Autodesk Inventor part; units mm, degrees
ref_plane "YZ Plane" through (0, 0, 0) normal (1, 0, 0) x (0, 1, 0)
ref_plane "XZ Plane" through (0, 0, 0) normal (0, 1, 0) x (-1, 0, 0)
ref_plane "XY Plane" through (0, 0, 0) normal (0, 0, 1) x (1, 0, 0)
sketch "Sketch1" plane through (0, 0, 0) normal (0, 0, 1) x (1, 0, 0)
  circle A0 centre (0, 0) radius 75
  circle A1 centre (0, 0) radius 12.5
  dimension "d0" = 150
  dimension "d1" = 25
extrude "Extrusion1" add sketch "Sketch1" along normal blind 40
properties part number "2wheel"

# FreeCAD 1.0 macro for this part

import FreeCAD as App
import Part
import Sketcher

doc = App.newDocument("Part")
params = doc.addObject("Spreadsheet::Sheet", "Params")
for row, (alias, value) in enumerate([
    ("sketch1_diameter", "150 mm"),
    ("sketch1_diameter2", "25 mm"),
    ("pad1_length", "40 mm"),
], start=1):
    params.set(f"A{row}", alias)
    params.set(f"B{row}", "=" + value)
    params.setAlias(f"B{row}", alias)

body = doc.addObject("PartDesign::Body", "Body")

# Sketch on XY plane
sketch1 = body.newObject("Sketcher::SketchObject", "Sketch")
sketch1.AttachmentSupport = (doc.getObject("XY_Plane"), [""])
sketch1.MapMode = "FlatFace"
sketch1.addGeometry([
    Part.Circle(App.Vector(0, 0, 0), App.Vector(0, 0, 1), 75),
    Part.Circle(App.Vector(0, 0, 0), App.Vector(0, 0, 1), 12.5),
], False)
sketch1.addConstraint([
    Sketcher.Constraint("Coincident", 0, 3, -1, 1),
    Sketcher.Constraint("Coincident", 1, 3, -1, 1),
    Sketcher.Constraint("Diameter", 0, 150.0),
    Sketcher.Constraint("Diameter", 1, 25.0),
])
sketch1.setExpression("Constraints[2]", "Params.sketch1_diameter")
sketch1.setExpression("Constraints[3]", "Params.sketch1_diameter2")
pad1 = body.newObject("PartDesign::Pad", "Pad")
pad1.Profile = sketch1
pad1.setExpression("Length", "Params.pad1_length")

doc.recompute()
